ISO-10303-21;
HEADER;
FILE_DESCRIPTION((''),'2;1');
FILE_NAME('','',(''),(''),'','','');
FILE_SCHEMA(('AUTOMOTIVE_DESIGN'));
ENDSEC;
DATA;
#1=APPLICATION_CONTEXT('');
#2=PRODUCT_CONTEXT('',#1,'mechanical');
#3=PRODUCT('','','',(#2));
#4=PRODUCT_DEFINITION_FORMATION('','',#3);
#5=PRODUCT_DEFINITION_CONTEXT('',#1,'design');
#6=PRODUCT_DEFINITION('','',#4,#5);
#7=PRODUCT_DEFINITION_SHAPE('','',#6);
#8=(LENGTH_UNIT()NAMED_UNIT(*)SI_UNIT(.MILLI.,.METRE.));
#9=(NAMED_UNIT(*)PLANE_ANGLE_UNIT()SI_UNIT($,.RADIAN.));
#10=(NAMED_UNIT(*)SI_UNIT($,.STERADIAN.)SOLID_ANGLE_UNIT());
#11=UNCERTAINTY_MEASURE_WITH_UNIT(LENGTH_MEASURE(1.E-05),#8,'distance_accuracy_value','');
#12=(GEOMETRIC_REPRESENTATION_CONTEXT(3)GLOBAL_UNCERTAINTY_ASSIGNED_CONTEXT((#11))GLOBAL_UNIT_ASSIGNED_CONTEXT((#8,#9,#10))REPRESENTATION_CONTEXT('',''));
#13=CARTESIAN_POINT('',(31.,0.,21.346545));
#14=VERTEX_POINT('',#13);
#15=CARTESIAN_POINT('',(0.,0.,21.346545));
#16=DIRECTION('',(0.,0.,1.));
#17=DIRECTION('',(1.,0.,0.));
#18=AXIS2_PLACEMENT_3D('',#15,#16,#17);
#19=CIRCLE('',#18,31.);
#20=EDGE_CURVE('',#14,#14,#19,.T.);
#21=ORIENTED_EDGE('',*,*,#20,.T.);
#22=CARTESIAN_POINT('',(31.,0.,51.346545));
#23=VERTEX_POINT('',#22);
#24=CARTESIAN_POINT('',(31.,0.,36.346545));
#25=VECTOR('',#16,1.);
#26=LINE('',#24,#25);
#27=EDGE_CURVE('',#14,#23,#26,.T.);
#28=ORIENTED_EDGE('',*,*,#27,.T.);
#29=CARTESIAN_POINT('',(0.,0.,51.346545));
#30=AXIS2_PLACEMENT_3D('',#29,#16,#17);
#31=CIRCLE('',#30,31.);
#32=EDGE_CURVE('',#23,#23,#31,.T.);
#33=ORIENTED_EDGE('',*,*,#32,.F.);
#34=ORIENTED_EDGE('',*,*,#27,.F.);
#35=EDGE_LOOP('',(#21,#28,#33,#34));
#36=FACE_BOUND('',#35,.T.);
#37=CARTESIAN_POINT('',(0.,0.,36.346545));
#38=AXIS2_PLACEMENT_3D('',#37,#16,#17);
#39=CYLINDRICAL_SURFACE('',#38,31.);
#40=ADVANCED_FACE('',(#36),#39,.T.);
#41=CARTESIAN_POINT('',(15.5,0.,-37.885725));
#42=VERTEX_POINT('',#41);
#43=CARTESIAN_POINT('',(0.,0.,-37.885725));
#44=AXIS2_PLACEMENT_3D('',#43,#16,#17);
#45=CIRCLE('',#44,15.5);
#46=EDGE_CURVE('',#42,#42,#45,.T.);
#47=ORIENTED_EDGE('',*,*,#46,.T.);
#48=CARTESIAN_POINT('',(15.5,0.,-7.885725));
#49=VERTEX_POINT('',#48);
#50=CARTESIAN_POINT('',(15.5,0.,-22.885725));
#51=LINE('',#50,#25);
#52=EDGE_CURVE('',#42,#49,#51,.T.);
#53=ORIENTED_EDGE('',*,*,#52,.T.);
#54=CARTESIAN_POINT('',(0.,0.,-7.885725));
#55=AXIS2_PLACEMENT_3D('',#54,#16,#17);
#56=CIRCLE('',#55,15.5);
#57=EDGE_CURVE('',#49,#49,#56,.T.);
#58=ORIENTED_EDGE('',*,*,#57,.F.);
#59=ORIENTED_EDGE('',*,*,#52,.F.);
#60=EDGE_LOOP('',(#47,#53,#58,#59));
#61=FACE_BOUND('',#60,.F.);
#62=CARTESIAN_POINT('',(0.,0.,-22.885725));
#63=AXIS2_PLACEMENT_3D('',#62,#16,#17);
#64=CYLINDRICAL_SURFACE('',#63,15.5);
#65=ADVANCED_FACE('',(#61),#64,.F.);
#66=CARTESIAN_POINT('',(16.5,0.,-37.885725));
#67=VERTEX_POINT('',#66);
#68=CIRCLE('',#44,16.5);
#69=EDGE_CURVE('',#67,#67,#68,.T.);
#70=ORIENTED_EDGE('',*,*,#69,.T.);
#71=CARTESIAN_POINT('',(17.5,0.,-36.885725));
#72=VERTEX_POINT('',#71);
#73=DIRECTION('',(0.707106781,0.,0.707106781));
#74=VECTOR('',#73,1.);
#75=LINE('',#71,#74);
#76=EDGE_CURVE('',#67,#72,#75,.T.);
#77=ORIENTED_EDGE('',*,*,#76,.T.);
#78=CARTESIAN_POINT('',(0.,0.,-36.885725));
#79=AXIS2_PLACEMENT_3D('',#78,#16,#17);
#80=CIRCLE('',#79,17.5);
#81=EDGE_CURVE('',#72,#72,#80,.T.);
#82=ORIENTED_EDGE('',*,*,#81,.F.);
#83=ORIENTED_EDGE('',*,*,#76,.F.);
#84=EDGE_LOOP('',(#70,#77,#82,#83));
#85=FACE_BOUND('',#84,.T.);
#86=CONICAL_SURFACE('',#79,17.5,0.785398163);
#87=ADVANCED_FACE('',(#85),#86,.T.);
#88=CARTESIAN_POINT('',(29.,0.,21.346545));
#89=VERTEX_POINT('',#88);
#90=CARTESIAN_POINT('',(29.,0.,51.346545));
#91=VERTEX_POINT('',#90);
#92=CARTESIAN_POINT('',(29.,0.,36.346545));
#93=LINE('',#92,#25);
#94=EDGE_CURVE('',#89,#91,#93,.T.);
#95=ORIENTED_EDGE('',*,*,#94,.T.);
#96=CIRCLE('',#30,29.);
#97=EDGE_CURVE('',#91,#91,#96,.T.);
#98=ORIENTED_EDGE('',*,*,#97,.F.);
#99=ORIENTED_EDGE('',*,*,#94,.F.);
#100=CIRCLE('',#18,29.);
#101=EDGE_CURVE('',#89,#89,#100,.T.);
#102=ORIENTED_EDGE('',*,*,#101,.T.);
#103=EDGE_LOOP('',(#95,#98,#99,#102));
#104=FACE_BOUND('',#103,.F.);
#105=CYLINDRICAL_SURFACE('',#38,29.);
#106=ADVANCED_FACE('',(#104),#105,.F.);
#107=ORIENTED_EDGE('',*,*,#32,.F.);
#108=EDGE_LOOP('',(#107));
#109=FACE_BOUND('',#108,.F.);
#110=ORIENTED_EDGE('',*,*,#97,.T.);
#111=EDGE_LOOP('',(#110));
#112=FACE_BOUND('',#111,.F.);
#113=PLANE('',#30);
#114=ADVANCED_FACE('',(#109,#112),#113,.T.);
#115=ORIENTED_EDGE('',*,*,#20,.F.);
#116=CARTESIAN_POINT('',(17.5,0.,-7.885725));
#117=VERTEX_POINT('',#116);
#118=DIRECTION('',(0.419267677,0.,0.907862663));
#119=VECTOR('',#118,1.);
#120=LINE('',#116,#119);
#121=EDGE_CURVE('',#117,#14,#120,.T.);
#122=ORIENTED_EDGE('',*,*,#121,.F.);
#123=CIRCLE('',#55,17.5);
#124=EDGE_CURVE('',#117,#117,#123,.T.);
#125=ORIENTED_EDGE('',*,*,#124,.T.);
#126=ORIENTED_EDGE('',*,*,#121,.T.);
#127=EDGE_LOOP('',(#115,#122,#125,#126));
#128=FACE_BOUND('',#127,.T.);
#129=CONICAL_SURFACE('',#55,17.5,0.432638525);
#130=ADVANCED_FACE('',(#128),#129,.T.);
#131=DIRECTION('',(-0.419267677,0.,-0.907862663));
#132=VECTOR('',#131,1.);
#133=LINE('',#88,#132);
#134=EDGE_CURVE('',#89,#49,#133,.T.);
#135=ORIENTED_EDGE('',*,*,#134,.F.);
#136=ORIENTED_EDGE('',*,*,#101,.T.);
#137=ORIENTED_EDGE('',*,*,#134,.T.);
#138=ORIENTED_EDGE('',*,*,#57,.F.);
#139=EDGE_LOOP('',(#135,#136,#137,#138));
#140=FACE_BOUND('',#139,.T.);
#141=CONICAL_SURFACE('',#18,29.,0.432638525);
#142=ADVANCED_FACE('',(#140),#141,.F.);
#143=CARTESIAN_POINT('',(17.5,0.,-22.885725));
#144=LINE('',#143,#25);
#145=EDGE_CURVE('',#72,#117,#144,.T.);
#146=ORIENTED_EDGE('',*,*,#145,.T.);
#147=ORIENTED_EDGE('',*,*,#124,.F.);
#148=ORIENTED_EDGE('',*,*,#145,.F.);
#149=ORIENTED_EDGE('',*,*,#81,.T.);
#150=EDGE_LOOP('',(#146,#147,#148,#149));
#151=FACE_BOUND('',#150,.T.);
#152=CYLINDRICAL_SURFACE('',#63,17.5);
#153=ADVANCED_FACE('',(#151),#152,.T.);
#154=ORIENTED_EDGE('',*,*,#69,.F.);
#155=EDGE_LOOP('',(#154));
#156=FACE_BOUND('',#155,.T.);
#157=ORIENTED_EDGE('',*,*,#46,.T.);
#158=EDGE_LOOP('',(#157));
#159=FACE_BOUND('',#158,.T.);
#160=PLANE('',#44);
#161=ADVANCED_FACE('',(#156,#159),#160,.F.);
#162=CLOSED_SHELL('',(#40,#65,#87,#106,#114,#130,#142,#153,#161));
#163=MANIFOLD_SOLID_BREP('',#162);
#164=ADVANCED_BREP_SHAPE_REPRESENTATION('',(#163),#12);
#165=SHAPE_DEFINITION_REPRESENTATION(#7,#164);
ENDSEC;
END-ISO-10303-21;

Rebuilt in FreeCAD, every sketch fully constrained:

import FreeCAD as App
import Part
import Sketcher
from FreeCAD import Vector
Q = App.Units.Quantity


def edges_at(feature, points):
    """Names of the edges that pass closest to the given points."""
    edges = feature.Shape.Edges
    near = lambda p: min(range(len(edges)), key=lambda i: edges[i].distToShape(Part.Vertex(*p))[0])
    return sorted({f"Edge{near(p) + 1}" for p in points})

doc = App.newDocument("Part")
body = doc.addObject("PartDesign::Body", "Body")

# Sketch on XZ plane
sketch1 = body.newObject("Sketcher::SketchObject", "Sketch")
sketch1.AttachmentSupport = (doc.getObject("XZ_Plane"), [""])
sketch1.MapMode = "FlatFace"
sketch1.addGeometry(Part.LineSegment(Vector(29, 51.3, 0), Vector(29, 21.3, 0)), False)
sketch1.addGeometry(Part.LineSegment(Vector(29, 21.3, 0), Vector(15.5, -7.9, 0)), False)
sketch1.addGeometry(Part.LineSegment(Vector(15.5, -7.9, 0), Vector(15.5, -37.9, 0)), False)
sketch1.addGeometry(Part.LineSegment(Vector(15.5, -37.9, 0), Vector(17.5, -37.9, 0)), False)
sketch1.addGeometry(Part.LineSegment(Vector(17.5, -37.9, 0), Vector(17.5, -7.9, 0)), False)
sketch1.addGeometry(Part.LineSegment(Vector(17.5, -7.9, 0), Vector(31, 21.3, 0)), False)
sketch1.addGeometry(Part.LineSegment(Vector(31, 21.3, 0), Vector(31, 51.3, 0)), False)
sketch1.addGeometry(Part.LineSegment(Vector(31, 51.3, 0), Vector(29, 51.3, 0)), False)
sketch1.addConstraint(Sketcher.Constraint("Coincident", 0, 2, 1, 1))
sketch1.addConstraint(Sketcher.Constraint("Coincident", 1, 2, 2, 1))
sketch1.addConstraint(Sketcher.Constraint("Coincident", 2, 2, 3, 1))
sketch1.addConstraint(Sketcher.Constraint("Coincident", 3, 2, 4, 1))
sketch1.addConstraint(Sketcher.Constraint("Coincident", 4, 2, 5, 1))
sketch1.addConstraint(Sketcher.Constraint("Coincident", 5, 2, 6, 1))
sketch1.addConstraint(Sketcher.Constraint("Coincident", 6, 2, 7, 1))
sketch1.addConstraint(Sketcher.Constraint("Coincident", 7, 2, 0, 1))
sketch1.addConstraint(Sketcher.Constraint("Vertical", 0))
sketch1.addConstraint(Sketcher.Constraint("Vertical", 2))
sketch1.addConstraint(Sketcher.Constraint("Horizontal", 3))
sketch1.addConstraint(Sketcher.Constraint("Vertical", 4))
sketch1.addConstraint(Sketcher.Constraint("Vertical", 6))
sketch1.addConstraint(Sketcher.Constraint("Horizontal", 7))
sketch1.addConstraint(Sketcher.Constraint("Parallel", 1, 5))
sketch1.addConstraint(Sketcher.Constraint("Horizontal", 1, 2, 4, 2))
sketch1.addConstraint(Sketcher.Constraint("Horizontal", 0, 2, 5, 2))
sketch1.addConstraint(Sketcher.Constraint("Equal", 0, 2))
sketch1.addConstraint(Sketcher.Constraint("DistanceX", 3, 1, 3, 2, Q("2 mm")))
sketch1.addConstraint(Sketcher.Constraint("DistanceY", 0, 2, 0, 1, Q("30 mm")))
sketch1.addConstraint(Sketcher.Constraint("DistanceX", -1, 1, 0, 2, Q("29 mm")))
sketch1.addConstraint(Sketcher.Constraint("DistanceX", -1, 1, 1, 2, Q("15.5 mm")))
sketch1.addConstraint(Sketcher.Constraint("Distance", 1, Q("32.199 mm")))
sketch1.addConstraint(Sketcher.Constraint("DistanceY", -1, 1, 0, 2, Q("21.346545 mm")))
revolution = body.newObject("PartDesign::Revolution", "Revolution")
revolution.Profile = sketch1
revolution.ReferenceAxis = (sketch1, ["V_Axis"])
revolution.Angle = 360
doc.recompute()

chamfer = body.newObject("PartDesign::Chamfer", "Chamfer")
chamfer.Base = (revolution, edges_at(revolution, [(-17.5, 0, -37.886)]))
chamfer.Size = 1

doc.recompute()
